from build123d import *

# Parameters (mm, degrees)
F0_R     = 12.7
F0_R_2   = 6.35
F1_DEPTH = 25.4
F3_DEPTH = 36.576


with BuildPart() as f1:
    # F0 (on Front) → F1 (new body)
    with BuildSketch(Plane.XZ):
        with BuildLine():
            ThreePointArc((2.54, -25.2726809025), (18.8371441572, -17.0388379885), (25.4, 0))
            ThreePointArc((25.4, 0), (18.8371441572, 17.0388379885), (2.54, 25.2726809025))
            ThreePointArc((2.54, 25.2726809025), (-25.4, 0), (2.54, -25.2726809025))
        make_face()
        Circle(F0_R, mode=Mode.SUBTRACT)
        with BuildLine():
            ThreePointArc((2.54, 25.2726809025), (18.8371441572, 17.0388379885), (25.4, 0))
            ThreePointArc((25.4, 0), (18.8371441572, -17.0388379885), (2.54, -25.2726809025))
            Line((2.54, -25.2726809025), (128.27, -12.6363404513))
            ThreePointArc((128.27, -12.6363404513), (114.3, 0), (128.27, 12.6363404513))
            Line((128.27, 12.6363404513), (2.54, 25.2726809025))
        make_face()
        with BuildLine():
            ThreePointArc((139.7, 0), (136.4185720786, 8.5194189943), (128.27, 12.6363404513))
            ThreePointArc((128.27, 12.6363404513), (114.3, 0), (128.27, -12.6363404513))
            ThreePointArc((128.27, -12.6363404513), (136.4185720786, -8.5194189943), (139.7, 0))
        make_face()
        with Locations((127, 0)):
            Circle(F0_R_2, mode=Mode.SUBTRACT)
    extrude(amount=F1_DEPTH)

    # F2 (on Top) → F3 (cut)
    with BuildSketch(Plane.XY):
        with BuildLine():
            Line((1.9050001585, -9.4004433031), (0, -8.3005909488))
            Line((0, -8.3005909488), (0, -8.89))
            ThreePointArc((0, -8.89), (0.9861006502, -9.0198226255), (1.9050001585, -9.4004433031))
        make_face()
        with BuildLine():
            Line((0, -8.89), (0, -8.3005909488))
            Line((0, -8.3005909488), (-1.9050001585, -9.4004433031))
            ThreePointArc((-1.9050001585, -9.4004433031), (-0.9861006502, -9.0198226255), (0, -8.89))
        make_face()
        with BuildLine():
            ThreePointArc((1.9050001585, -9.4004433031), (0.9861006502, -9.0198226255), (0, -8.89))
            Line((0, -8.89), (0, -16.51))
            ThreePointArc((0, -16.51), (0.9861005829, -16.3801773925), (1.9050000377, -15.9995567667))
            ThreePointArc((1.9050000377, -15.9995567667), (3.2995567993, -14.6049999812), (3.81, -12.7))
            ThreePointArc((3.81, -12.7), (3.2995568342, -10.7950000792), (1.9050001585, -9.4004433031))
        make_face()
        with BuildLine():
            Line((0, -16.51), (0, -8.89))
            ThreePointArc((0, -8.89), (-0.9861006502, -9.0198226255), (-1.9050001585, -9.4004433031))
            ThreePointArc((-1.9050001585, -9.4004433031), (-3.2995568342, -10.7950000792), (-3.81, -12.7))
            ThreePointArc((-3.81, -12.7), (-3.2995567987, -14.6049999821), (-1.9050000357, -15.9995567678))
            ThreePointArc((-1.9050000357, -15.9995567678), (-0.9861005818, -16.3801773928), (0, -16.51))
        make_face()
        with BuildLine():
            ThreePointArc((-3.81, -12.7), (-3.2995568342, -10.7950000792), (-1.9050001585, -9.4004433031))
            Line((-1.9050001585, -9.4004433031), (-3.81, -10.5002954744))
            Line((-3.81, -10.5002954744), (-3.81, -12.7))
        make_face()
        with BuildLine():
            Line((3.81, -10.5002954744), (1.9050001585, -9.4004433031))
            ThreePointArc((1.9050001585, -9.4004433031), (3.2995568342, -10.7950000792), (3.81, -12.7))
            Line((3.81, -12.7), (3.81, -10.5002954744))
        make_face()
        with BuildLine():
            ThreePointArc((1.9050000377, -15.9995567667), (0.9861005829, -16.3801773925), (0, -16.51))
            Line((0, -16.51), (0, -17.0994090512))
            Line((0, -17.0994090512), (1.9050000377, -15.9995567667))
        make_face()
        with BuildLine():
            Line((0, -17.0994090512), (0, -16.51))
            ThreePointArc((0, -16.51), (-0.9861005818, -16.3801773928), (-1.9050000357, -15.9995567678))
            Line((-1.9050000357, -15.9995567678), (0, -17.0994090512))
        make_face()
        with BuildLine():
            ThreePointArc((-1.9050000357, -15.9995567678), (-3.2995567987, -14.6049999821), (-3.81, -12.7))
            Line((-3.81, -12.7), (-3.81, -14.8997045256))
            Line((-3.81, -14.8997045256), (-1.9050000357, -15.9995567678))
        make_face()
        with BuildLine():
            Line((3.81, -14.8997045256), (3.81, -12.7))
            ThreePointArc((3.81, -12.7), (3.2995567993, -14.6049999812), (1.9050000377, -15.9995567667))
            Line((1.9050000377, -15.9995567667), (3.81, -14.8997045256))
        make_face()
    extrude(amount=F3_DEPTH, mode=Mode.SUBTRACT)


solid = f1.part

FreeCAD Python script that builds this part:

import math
import FreeCAD as App
import Part
import Sketcher
Q = App.Units.Quantity

doc = App.newDocument("Part")
body = doc.addObject("PartDesign::Body", "Body")

sketch1 = body.newObject("Sketcher::SketchObject", "Sketch")
sketch1.AttachmentSupport = (doc.getObject("XZ_Plane"), [""])
sketch1.MapMode = "FlatFace"
sketch1.addGeometry(Part.ArcOfCircle(Part.Circle(App.Vector(0, 0, 0), App.Vector(0, 0, 1), 25.4), math.radians(84.26083), math.radians(275.73917)), False)
sketch1.addGeometry(Part.LineSegment(App.Vector(2.54, -25.272681, 0), App.Vector(128.27, -12.63634, 0)), False)
sketch1.addGeometry(Part.ArcOfCircle(Part.Circle(App.Vector(127, 0, 0), App.Vector(0, 0, 1), 12.7), math.radians(-84.26083), math.radians(0)), False)
sketch1.addGeometry(Part.ArcOfCircle(Part.Circle(App.Vector(127, 0, 0), App.Vector(0, 0, 1), 12.7), math.radians(0), math.radians(84.26083)), False)
sketch1.addGeometry(Part.LineSegment(App.Vector(128.27, 12.63634, 0), App.Vector(2.54, 25.272681, 0)), False)
sketch1.addGeometry(Part.Circle(App.Vector(0, 0, 0), App.Vector(0, 0, 1), 12.7), False)
sketch1.addGeometry(Part.Circle(App.Vector(127, 0, 0), App.Vector(0, 0, 1), 6.35), False)
sketch1.addConstraint(Sketcher.Constraint("Tangent", 0, 2, 1, 1))
sketch1.addConstraint(Sketcher.Constraint("Tangent", 1, 2, 2, 1))
sketch1.addConstraint(Sketcher.Constraint("Tangent", 2, 2, 3, 1))
sketch1.addConstraint(Sketcher.Constraint("Tangent", 3, 2, 4, 1))
sketch1.addConstraint(Sketcher.Constraint("Tangent", 4, 2, 0, 1))
sketch1.addConstraint(Sketcher.Constraint("Coincident", 0, 3, -1, 1))
sketch1.addConstraint(Sketcher.Constraint("Coincident", 5, 3, -1, 1))
sketch1.addConstraint(Sketcher.Constraint("Coincident", 6, 3, 2, 3))
sketch1.addConstraint(Sketcher.Constraint("Equal", 2, 3))
sketch1.addConstraint(Sketcher.Constraint("Equal", 3, 5))
sketch1.addConstraint(Sketcher.Constraint("PointOnObject", 2, 3, -1))
sketch1.addConstraint(Sketcher.Constraint("PointOnObject", 2, 2, -1))
sketch1.addConstraint(Sketcher.Constraint("Diameter", 5, Q("1 in")))
sketch1.addConstraint(Sketcher.Constraint("Radius", 0, Q("1 in")))
sketch1.addConstraint(Sketcher.Constraint("Diameter", 6, Q("0.5 in")))
sketch1.addConstraint(Sketcher.Constraint("DistanceX", -1, 1, 2, 3, Q("5 in")))
pad1 = body.newObject("PartDesign::Pad", "Pad")
pad1.Profile = sketch1
pad1.Length = Q("1 in")

sketch2 = body.newObject("Sketcher::SketchObject", "Sketch001")
sketch2.AttachmentSupport = (doc.getObject("XY_Plane"), [""])
sketch2.MapMode = "FlatFace"
sketch2.addGeometry(Part.LineSegment(App.Vector(1.905, -9.400443, 0), App.Vector(0, -8.300591, 0)), False)
sketch2.addGeometry(Part.LineSegment(App.Vector(0, -8.300591, 0), App.Vector(-1.905, -9.400443, 0)), False)
sketch2.addGeometry(Part.LineSegment(App.Vector(-1.905, -9.400443, 0), App.Vector(-3.81, -10.500295, 0)), False)
sketch2.addGeometry(Part.LineSegment(App.Vector(-3.81, -10.500295, 0), App.Vector(-3.81, -14.899705, 0)), False)
sketch2.addGeometry(Part.LineSegment(App.Vector(-3.81, -14.899705, 0), App.Vector(-1.905, -15.999557, 0)), False)
sketch2.addGeometry(Part.LineSegment(App.Vector(-1.905, -15.999557, 0), App.Vector(0, -17.099409, 0)), False)
sketch2.addGeometry(Part.LineSegment(App.Vector(0, -17.099409, 0), App.Vector(1.905, -15.999557, 0)), False)
sketch2.addGeometry(Part.LineSegment(App.Vector(1.905, -15.999557, 0), App.Vector(3.81, -14.899705, 0)), False)
sketch2.addGeometry(Part.LineSegment(App.Vector(3.81, -14.899705, 0), App.Vector(3.81, -10.500295, 0)), False)
sketch2.addGeometry(Part.LineSegment(App.Vector(3.81, -10.500295, 0), App.Vector(1.905, -9.400443, 0)), False)
sketch2.addConstraint(Sketcher.Constraint("Coincident", 0, 2, 1, 1))
sketch2.addConstraint(Sketcher.Constraint("Coincident", 1, 2, 2, 1))
sketch2.addConstraint(Sketcher.Constraint("Coincident", 2, 2, 3, 1))
sketch2.addConstraint(Sketcher.Constraint("Coincident", 3, 2, 4, 1))
sketch2.addConstraint(Sketcher.Constraint("Coincident", 4, 2, 5, 1))
sketch2.addConstraint(Sketcher.Constraint("Coincident", 5, 2, 6, 1))
sketch2.addConstraint(Sketcher.Constraint("Coincident", 6, 2, 7, 1))
sketch2.addConstraint(Sketcher.Constraint("Coincident", 7, 2, 8, 1))
sketch2.addConstraint(Sketcher.Constraint("Coincident", 8, 2, 9, 1))
sketch2.addConstraint(Sketcher.Constraint("Coincident", 9, 2, 0, 1))
sketch2.addConstraint(Sketcher.Constraint("Vertical", 3))
sketch2.addConstraint(Sketcher.Constraint("Vertical", 8))
sketch2.addConstraint(Sketcher.Constraint("Symmetric", 4, 2, 6, 2, -2))
sketch2.addConstraint(Sketcher.Constraint("Symmetric", 3, 2, 7, 2, -2))
sketch2.addConstraint(Sketcher.Constraint("Symmetric", 1, 2, 9, 2, -2))
sketch2.addConstraint(Sketcher.Constraint("PointOnObject", 0, 2, -2))
sketch2.addConstraint(Sketcher.Constraint("PointOnObject", 5, 2, -2))
sketch2.addConstraint(Sketcher.Constraint("Parallel", 1, 2))
sketch2.addConstraint(Sketcher.Constraint("Parallel", 0, 4))
sketch2.addConstraint(Sketcher.Constraint("Parallel", 4, 5))
sketch2.addConstraint(Sketcher.Constraint("Parallel", 5, 9))
sketch2.addConstraint(Sketcher.Constraint("Vertical", 1, 2, 4, 2))
sketch2.addConstraint(Sketcher.Constraint("Equal", 1, 2))
sketch2.addConstraint(Sketcher.Constraint("Angle", 0, Q("150 deg")))
sketch2.addConstraint(Sketcher.Constraint("DistanceX", 3, 2, 7, 2, Q("0.3 in")))
sketch2.addConstraint(Sketcher.Constraint("DistanceY", 3, 2, 3, 1, Q("4.399409 mm")))
sketch2.addConstraint(Sketcher.Constraint("DistanceY", 0, 2, -1, 1, Q("8.300591 mm")))
pocket1 = body.newObject("PartDesign::Pocket", "Pocket")
pocket1.Profile = sketch2
pocket1.Length = Q("1.44 in")
pocket1.Reversed = True

doc.recompute()
